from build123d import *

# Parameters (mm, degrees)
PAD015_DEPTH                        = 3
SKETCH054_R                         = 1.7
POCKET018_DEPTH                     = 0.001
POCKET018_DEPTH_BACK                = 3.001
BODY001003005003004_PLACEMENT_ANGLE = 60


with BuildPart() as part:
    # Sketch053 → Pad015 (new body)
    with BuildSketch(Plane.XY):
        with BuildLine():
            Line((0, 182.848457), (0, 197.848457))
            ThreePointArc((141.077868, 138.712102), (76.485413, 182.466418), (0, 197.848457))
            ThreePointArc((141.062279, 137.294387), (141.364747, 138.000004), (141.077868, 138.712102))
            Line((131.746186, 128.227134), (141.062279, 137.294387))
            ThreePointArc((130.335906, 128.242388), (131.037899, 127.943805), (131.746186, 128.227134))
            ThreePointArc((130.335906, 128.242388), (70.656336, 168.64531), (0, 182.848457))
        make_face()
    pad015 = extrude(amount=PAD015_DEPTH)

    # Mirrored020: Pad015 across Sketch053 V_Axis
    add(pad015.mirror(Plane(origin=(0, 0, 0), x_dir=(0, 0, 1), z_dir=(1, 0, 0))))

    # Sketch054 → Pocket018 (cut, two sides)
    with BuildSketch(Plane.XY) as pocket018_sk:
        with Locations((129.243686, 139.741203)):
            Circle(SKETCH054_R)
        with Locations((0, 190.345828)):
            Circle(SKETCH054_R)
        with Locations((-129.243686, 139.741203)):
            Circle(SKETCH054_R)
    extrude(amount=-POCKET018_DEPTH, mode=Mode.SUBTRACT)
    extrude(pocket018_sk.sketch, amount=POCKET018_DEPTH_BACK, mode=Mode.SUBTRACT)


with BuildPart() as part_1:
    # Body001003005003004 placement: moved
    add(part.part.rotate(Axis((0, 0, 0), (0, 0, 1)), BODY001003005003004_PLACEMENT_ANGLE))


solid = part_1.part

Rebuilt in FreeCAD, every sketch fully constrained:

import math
import FreeCAD as App
import Part
import Sketcher

V = App.Vector
Q = App.Units.Quantity

doc = App.newDocument("Part")
body = doc.addObject("PartDesign::Body", "Body")

sketch1 = doc.addObject("Sketcher::SketchObject", "Sketch")
body.addObject(sketch1)
sketch1.AttachmentSupport = (doc.XY_Plane, [""])
sketch1.MapMode = "FlatFace"
sketch1.addGeometry([
    Part.LineSegment(V(0, 197.848457, 0), V(0, 182.848457, 0)),
    Part.ArcOfCircle(Part.Circle(V(0.000002, 0.000001, 0), V(0, 0, 1), 182.848456), math.radians(44.536128), math.radians(90)),
    Part.ArcOfCircle(Part.Circle(V(131.048715, 128.943746, 0), V(0, 0, 1), 1), math.radians(-135.463907), math.radians(-45.775501)),
    Part.LineSegment(V(131.746186, 128.227134, 0), V(141.062279, 137.294387, 0)),
    Part.ArcOfCircle(Part.Circle(V(140.364807, 138.011, 0), V(0, 0, 1), 1), math.radians(-45.775502), math.radians(44.515519)),
    Part.ArcOfCircle(Part.Circle(V(0.000002, 0.000003, 0), V(0, 0, 1), 197.848454), math.radians(44.515546), math.radians(90)),
], False)
sketch1.addConstraint([
    Sketcher.Constraint("Coincident", 0, 2, 1, 2),
    Sketcher.Constraint("Tangent", 1, 1, 2, 1),
    Sketcher.Constraint("Tangent", 2, 2, 3, 1),
    Sketcher.Constraint("Tangent", 3, 2, 4, 1),
    Sketcher.Constraint("Tangent", 4, 2, 5, 1),
    Sketcher.Constraint("Coincident", 5, 2, 0, 1),
    Sketcher.Constraint("Vertical", 0),
    Sketcher.Constraint("Coincident", 1, 3, -1, 1),
    Sketcher.Constraint("Coincident", 5, 3, -1, 1),
    Sketcher.Constraint("Equal", 2, 4),
    Sketcher.Constraint("PointOnObject", 0, 2, -2),
    Sketcher.Constraint("Radius", 2, Q("1 mm")),
    Sketcher.Constraint("DistanceY", 0, 2, 0, 1, Q("15 mm")),
    Sketcher.Constraint("DistanceY", -1, 1, 4, 3, Q("138.011 mm")),
    Sketcher.Constraint("Radius", 1, Q("182.848456 mm")),
    Sketcher.Constraint("DistanceY", 1, 1, 3, 2, Q("9.051999 mm")),
])
pad1 = doc.addObject("PartDesign::Pad", "Pad")
body.addObject(pad1)
pad1.Profile = sketch1
pad1.Length = 3
doc.recompute()

mirrored = doc.addObject("PartDesign::Mirrored", "Mirrored")
body.addObject(mirrored)
mirrored.Originals = [pad1]
mirrored.MirrorPlane = (doc.YZ_Plane, [""])
body.Tip = mirrored

sketch2 = doc.addObject("Sketcher::SketchObject", "Sketch001")
body.addObject(sketch2)
sketch2.AttachmentSupport = (doc.XY_Plane, [""])
sketch2.MapMode = "FlatFace"
sketch2.addGeometry([
    Part.Circle(V(129.243686, 139.741203, 0), V(0, 0, 1), 1.7),
    Part.Circle(V(0, 190.345828, 0), V(0, 0, 1), 1.7),
    Part.Circle(V(-129.243686, 139.741203, 0), V(0, 0, 1), 1.7),
], False)
sketch2.addConstraint([
    Sketcher.Constraint("Equal", 0, 1),
    Sketcher.Constraint("Equal", 1, 2),
    Sketcher.Constraint("Symmetric", 0, 3, 2, 3, -2),
    Sketcher.Constraint("PointOnObject", 1, 3, -2),
    Sketcher.Constraint("Diameter", 0, Q("3.4 mm")),
    Sketcher.Constraint("DistanceY", -1, 1, 1, 3, Q("190.345828 mm")),
    Sketcher.Constraint("DistanceX", 2, 3, 0, 3, Q("258.487372 mm")),
    Sketcher.Constraint("DistanceY", -1, 1, 0, 3, Q("139.741203 mm")),
])
pocket1 = doc.addObject("PartDesign::Pocket", "Pocket")
body.addObject(pocket1)
pocket1.Profile = sketch2
pocket1.Type = "ThroughAll"
pocket1.Midplane = True
body2 = doc.addObject("PartDesign::Body", "Body001")
doc.recompute()

body.Placement = App.Placement(V(0, 0, 0), App.Rotation(V(0, 0, 1), 60))
boolean = doc.addObject("PartDesign::Boolean", "Boolean")
body2.addObject(boolean)
boolean.Type = "Fuse"
boolean.addObjects([body])

doc.recompute()
